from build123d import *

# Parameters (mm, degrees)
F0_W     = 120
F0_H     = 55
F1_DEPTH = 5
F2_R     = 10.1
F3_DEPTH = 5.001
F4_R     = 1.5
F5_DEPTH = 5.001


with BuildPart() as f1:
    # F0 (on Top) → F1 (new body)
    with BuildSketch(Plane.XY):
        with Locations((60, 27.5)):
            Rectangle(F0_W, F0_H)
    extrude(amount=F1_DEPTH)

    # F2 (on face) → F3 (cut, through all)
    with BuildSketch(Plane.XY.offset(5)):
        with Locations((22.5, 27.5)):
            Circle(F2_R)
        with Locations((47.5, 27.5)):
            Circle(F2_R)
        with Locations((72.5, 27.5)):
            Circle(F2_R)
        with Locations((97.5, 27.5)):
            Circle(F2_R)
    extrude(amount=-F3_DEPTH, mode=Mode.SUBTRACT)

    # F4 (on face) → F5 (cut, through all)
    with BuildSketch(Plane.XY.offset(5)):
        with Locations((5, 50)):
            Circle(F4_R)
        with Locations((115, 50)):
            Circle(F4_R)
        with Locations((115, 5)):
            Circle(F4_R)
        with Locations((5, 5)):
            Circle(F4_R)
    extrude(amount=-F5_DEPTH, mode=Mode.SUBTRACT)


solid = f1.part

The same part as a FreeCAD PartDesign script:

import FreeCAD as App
import Part
import Sketcher


def add_polygon(sketch, points):
    """Adds a closed chain of lines whose ends are joined by coincident constraints."""
    first, n = sketch.GeometryCount, len(points)
    for a, b in zip(points, points[1:] + points[:1]):
        sketch.addGeometry(Part.LineSegment(App.Vector(*a, 0), App.Vector(*b, 0)), False)
    for i in range(n):
        sketch.addConstraint(Sketcher.Constraint("Coincident", first + i, 2, first + (i + 1) % n, 1))

doc = App.newDocument("Part")
body = doc.addObject("PartDesign::Body", "Body")

sketch1 = body.newObject("Sketcher::SketchObject", "Sketch")
sketch1.AttachmentSupport = (doc.getObject("XY_Plane"), [""])
sketch1.MapMode = "FlatFace"
add_polygon(sketch1, [(0, 55), (0, 0), (120, 0), (120, 55)])
sketch1.addConstraint([
    Sketcher.Constraint("Vertical", 0),
    Sketcher.Constraint("Horizontal", 1),
    Sketcher.Constraint("Vertical", 2),
    Sketcher.Constraint("Horizontal", 3),
    Sketcher.Constraint("Coincident", 0, 2, -1, 1),
    Sketcher.Constraint("DistanceX", 1, 1, 1, 2, 120.0),
    Sketcher.Constraint("DistanceY", 0, 2, 0, 1, 55.0),
])
pad1 = body.newObject("PartDesign::Pad", "Pad")
pad1.Profile = sketch1
pad1.Length = 5

sketch2 = body.newObject("Sketcher::SketchObject", "Sketch001")
sketch2.AttachmentSupport = (doc.getObject("XY_Plane"), [""])
sketch2.MapMode = "FlatFace"
sketch2.AttachmentOffset = App.Placement(App.Vector(0, 0, 5), App.Rotation())
sketch2.addGeometry([
    Part.Circle(App.Vector(22.5, 27.5, 0), App.Vector(0, 0, 1), 10.1),
    Part.Circle(App.Vector(47.5, 27.5, 0), App.Vector(0, 0, 1), 10.1),
    Part.Circle(App.Vector(72.5, 27.5, 0), App.Vector(0, 0, 1), 10.1),
    Part.Circle(App.Vector(97.5, 27.5, 0), App.Vector(0, 0, 1), 10.1),
], False)
sketch2.addConstraint([
    Sketcher.Constraint("Equal", 0, 1),
    Sketcher.Constraint("Equal", 1, 2),
    Sketcher.Constraint("Equal", 2, 3),
    Sketcher.Constraint("Horizontal", 0, 3, 1, 3),
    Sketcher.Constraint("Horizontal", 1, 3, 2, 3),
    Sketcher.Constraint("Horizontal", 2, 3, 3, 3),
    Sketcher.Constraint("Diameter", 0, 20.2),
    Sketcher.Constraint("DistanceX", 0, 3, 1, 3, 25.0),
    Sketcher.Constraint("DistanceX", 1, 3, 2, 3, 25.0),
    Sketcher.Constraint("DistanceX", 2, 3, 3, 3, 25.0),
    Sketcher.Constraint("DistanceX", -1, 1, 0, 3, 22.5),
    Sketcher.Constraint("DistanceY", -1, 1, 0, 3, 27.5),
])
pocket1 = body.newObject("PartDesign::Pocket", "Pocket")
pocket1.Profile = sketch2
pocket1.Type = "ThroughAll"

sketch3 = body.newObject("Sketcher::SketchObject", "Sketch002")
sketch3.AttachmentSupport = (doc.getObject("XY_Plane"), [""])
sketch3.MapMode = "FlatFace"
sketch3.AttachmentOffset = App.Placement(App.Vector(0, 0, 5), App.Rotation())
sketch3.addGeometry([
    Part.Circle(App.Vector(5, 50, 0), App.Vector(0, 0, 1), 1.5),
    Part.Circle(App.Vector(115, 50, 0), App.Vector(0, 0, 1), 1.5),
    Part.Circle(App.Vector(115, 5, 0), App.Vector(0, 0, 1), 1.5),
    Part.Circle(App.Vector(5, 5, 0), App.Vector(0, 0, 1), 1.5),
], False)
sketch3.addConstraint([
    Sketcher.Constraint("Equal", 0, 1),
    Sketcher.Constraint("Equal", 1, 2),
    Sketcher.Constraint("Equal", 2, 3),
    Sketcher.Constraint("Horizontal", 0, 3, 1, 3),
    Sketcher.Constraint("Horizontal", 2, 3, 3, 3),
    Sketcher.Constraint("Vertical", 1, 3, 2, 3),
    Sketcher.Constraint("Vertical", 0, 3, 3, 3),
    Sketcher.Constraint("Diameter", 0, 3.0),
    Sketcher.Constraint("DistanceX", -1, 1, 0, 3, 5.0),
    Sketcher.Constraint("DistanceY", -1, 1, 0, 3, 50.0),
    Sketcher.Constraint("DistanceX", -1, 1, 1, 3, 115.0),
    Sketcher.Constraint("DistanceY", -1, 1, 2, 3, 5.0),
])
pocket2 = body.newObject("PartDesign::Pocket", "Pocket001")
pocket2.Profile = sketch3
pocket2.Type = "ThroughAll"

doc.recompute()
